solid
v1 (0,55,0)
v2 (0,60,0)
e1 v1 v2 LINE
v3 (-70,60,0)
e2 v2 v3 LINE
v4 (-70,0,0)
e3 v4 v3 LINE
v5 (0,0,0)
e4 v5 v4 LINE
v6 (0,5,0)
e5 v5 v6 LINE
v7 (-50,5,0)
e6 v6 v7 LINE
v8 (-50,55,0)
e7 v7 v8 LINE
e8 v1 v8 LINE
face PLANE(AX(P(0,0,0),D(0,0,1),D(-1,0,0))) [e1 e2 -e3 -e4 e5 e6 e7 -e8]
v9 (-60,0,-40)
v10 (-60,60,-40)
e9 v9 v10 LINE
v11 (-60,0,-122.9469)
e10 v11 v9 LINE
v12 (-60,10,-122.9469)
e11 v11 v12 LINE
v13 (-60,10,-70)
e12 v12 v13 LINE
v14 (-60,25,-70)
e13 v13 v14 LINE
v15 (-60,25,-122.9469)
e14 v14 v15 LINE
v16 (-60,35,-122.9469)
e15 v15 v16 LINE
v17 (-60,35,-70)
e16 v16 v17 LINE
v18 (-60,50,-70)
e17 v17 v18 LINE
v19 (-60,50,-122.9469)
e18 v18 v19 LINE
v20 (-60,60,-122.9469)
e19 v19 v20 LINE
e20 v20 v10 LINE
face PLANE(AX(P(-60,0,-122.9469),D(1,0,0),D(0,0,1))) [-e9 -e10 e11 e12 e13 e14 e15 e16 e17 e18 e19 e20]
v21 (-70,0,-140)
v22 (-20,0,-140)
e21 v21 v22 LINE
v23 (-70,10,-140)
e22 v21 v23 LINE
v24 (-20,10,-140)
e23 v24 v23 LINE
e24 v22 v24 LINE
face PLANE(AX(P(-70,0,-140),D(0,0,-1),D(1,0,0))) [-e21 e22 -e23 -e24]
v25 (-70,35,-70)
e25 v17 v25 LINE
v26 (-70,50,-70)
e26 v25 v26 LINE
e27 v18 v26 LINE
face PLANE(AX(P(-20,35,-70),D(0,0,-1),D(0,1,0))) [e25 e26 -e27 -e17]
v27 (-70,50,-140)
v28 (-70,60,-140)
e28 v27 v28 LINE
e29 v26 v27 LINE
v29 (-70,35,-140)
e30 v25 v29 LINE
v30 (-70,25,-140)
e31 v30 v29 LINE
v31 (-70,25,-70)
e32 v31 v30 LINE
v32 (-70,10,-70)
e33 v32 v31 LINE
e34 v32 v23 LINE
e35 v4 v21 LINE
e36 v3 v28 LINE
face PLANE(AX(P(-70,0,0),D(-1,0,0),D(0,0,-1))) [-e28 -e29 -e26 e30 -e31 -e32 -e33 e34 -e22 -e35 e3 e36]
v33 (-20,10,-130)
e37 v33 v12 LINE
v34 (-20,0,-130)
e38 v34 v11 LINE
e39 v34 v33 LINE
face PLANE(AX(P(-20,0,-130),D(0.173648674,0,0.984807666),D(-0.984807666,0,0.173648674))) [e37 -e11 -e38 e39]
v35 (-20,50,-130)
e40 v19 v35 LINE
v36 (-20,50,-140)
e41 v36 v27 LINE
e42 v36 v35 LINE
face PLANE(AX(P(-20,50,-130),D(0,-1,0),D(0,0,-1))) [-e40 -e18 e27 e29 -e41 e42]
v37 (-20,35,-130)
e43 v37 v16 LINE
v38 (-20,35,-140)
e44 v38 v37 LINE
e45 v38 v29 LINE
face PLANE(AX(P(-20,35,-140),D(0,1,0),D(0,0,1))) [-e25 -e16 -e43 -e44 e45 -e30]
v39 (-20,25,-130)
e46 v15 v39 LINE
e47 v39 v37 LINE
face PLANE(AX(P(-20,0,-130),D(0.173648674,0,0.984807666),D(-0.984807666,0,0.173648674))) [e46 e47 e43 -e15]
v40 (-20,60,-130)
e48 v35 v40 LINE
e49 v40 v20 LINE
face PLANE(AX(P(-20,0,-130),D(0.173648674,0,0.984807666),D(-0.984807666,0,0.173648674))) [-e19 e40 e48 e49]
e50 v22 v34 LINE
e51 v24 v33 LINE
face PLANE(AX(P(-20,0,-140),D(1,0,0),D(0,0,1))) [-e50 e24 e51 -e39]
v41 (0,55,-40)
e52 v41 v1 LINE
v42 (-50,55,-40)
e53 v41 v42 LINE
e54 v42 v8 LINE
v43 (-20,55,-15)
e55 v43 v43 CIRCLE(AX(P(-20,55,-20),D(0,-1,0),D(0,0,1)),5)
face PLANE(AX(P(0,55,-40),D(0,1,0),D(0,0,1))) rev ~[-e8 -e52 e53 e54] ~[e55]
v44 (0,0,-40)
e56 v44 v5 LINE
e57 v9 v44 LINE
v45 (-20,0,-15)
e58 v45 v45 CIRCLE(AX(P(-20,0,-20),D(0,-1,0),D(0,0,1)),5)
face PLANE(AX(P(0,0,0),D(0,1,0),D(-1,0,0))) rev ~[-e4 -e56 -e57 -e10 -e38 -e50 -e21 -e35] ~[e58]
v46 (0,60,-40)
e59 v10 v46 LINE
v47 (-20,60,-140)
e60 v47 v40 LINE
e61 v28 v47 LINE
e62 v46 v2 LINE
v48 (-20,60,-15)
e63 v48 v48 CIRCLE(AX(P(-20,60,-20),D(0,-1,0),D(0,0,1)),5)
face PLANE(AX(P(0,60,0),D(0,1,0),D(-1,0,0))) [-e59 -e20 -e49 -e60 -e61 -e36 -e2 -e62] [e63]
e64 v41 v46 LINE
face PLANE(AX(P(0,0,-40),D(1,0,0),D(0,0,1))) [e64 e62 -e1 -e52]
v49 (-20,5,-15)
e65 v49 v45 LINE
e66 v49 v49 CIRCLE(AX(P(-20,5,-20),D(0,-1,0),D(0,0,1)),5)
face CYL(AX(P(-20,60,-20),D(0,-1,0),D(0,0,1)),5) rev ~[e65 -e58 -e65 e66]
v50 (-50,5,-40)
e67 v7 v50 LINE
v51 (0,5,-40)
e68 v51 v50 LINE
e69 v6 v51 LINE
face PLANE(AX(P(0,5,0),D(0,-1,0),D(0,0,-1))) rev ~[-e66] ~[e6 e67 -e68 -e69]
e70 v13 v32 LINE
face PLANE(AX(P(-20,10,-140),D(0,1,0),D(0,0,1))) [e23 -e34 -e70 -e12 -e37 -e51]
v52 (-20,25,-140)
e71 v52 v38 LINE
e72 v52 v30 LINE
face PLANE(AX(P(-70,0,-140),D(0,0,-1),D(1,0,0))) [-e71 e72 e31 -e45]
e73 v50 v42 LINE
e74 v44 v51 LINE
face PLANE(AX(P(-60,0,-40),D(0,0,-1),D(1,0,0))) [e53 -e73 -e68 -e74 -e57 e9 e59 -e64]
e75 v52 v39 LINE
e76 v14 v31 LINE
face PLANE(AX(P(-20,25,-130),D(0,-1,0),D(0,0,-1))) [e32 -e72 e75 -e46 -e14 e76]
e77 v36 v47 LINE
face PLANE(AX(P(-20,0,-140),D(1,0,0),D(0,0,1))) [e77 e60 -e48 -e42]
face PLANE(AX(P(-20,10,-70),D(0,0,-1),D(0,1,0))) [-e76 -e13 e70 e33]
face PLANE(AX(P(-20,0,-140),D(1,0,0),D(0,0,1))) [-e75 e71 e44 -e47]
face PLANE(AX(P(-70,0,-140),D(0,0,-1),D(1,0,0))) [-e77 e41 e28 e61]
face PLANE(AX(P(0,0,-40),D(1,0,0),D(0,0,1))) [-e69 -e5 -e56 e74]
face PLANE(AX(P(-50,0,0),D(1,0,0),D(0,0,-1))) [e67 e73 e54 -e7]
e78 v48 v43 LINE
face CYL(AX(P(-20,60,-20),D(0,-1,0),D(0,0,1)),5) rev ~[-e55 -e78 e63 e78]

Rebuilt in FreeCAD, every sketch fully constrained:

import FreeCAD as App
import Part
import Sketcher

V = App.Vector
Q = App.Units.Quantity

doc = App.newDocument("Part")
body = doc.addObject("PartDesign::Body", "Body")

sketch1 = body.newObject("Sketcher::SketchObject", "Sketch")
sketch1.AttachmentSupport = (doc.getObject("XZ_Plane"), [""])
sketch1.MapMode = "FlatFace"
sketch1.addGeometry(Part.LineSegment(V(-70, 0, 0), V(0, 0, 0)), False)
sketch1.addGeometry(Part.LineSegment(V(0, 0, 0), V(0, -40, 0)), False)
sketch1.addGeometry(Part.LineSegment(V(0, -40, 0), V(-60, -40, 0)), False)
sketch1.addGeometry(Part.LineSegment(V(-60, -40, 0), V(-60, -123, 0)), False)
sketch1.addGeometry(Part.LineSegment(V(-60, -123, 0), V(-20, -130, 0)), False)
sketch1.addGeometry(Part.LineSegment(V(-20, -130, 0), V(-20, -140, 0)), False)
sketch1.addGeometry(Part.LineSegment(V(-20, -140, 0), V(-70, -140, 0)), False)
sketch1.addGeometry(Part.LineSegment(V(-70, -140, 0), V(-70, 0, 0)), False)
sketch1.addConstraint(Sketcher.Constraint("Coincident", 0, 2, 1, 1))
sketch1.addConstraint(Sketcher.Constraint("Coincident", 1, 2, 2, 1))
sketch1.addConstraint(Sketcher.Constraint("Coincident", 2, 2, 3, 1))
sketch1.addConstraint(Sketcher.Constraint("Coincident", 3, 2, 4, 1))
sketch1.addConstraint(Sketcher.Constraint("Coincident", 4, 2, 5, 1))
sketch1.addConstraint(Sketcher.Constraint("Coincident", 5, 2, 6, 1))
sketch1.addConstraint(Sketcher.Constraint("Coincident", 6, 2, 7, 1))
sketch1.addConstraint(Sketcher.Constraint("Coincident", 7, 2, 0, 1))
sketch1.addConstraint(Sketcher.Constraint("Horizontal", 0))
sketch1.addConstraint(Sketcher.Constraint("Vertical", 1))
sketch1.addConstraint(Sketcher.Constraint("Horizontal", 2))
sketch1.addConstraint(Sketcher.Constraint("Vertical", 3))
sketch1.addConstraint(Sketcher.Constraint("Vertical", 5))
sketch1.addConstraint(Sketcher.Constraint("Horizontal", 6))
sketch1.addConstraint(Sketcher.Constraint("Vertical", 7))
sketch1.addConstraint(Sketcher.Constraint("Coincident", 0, 2, -1, 1))
sketch1.addConstraint(Sketcher.Constraint("DistanceX", 0, 1, 0, 2, Q("70 mm")))
sketch1.addConstraint(Sketcher.Constraint("DistanceX", 2, 2, 2, 1, Q("60 mm")))
sketch1.addConstraint(Sketcher.Constraint("DistanceX", 6, 2, 6, 1, Q("50 mm")))
sketch1.addConstraint(Sketcher.Constraint("DistanceY", 1, 2, 1, 1, Q("40 mm")))
sketch1.addConstraint(Sketcher.Constraint("DistanceY", 5, 2, 5, 1, Q("10 mm")))
sketch1.addConstraint(Sketcher.Constraint("DistanceY", 7, 1, 7, 2, Q("140 mm")))
sketch1.addConstraint(Sketcher.Constraint("Angle", 4, Q("-10 deg")))
pad1 = body.newObject("PartDesign::Pad", "Pad")
pad1.Profile = sketch1
pad1.Length = 60
pad1.Reversed = True

sketch2 = body.newObject("Sketcher::SketchObject", "Sketch001")
sketch2.AttachmentSupport = (doc.getObject("YZ_Plane"), [""])
sketch2.MapMode = "FlatFace"
sketch2.addGeometry(Part.LineSegment(V(5, 0, 0), V(5, -40, 0)), False)
sketch2.addGeometry(Part.LineSegment(V(5, -40, 0), V(55, -40, 0)), False)
sketch2.addGeometry(Part.LineSegment(V(55, -40, 0), V(55, 0, 0)), False)
sketch2.addGeometry(Part.LineSegment(V(55, 0, 0), V(5, 0, 0)), False)
sketch2.addConstraint(Sketcher.Constraint("Coincident", 0, 2, 1, 1))
sketch2.addConstraint(Sketcher.Constraint("Coincident", 1, 2, 2, 1))
sketch2.addConstraint(Sketcher.Constraint("Coincident", 2, 2, 3, 1))
sketch2.addConstraint(Sketcher.Constraint("Coincident", 3, 2, 0, 1))
sketch2.addConstraint(Sketcher.Constraint("Vertical", 0))
sketch2.addConstraint(Sketcher.Constraint("Horizontal", 1))
sketch2.addConstraint(Sketcher.Constraint("Vertical", 2))
sketch2.addConstraint(Sketcher.Constraint("Horizontal", 3))
sketch2.addConstraint(Sketcher.Constraint("PointOnObject", 2, 2, -1))
sketch2.addConstraint(Sketcher.Constraint("DistanceX", -1, 1, 0, 2, Q("5 mm")))
sketch2.addConstraint(Sketcher.Constraint("DistanceX", 1, 1, 1, 2, Q("50 mm")))
sketch2.addConstraint(Sketcher.Constraint("DistanceY", 0, 2, 0, 1, Q("40 mm")))
pocket1 = body.newObject("PartDesign::Pocket", "Pocket")
pocket1.Profile = sketch2
pocket1.Length = 50

sketch3 = body.newObject("Sketcher::SketchObject", "Sketch002")
sketch3.AttachmentSupport = (doc.getObject("YZ_Plane"), [""])
sketch3.MapMode = "FlatFace"
sketch3.AttachmentOffset = App.Placement(V(0, 0, -20), App.Rotation())
sketch3.addGeometry(Part.LineSegment(V(10, -140, 0), V(25, -140, 0)), False)
sketch3.addGeometry(Part.LineSegment(V(25, -140, 0), V(25, -70, 0)), False)
sketch3.addGeometry(Part.LineSegment(V(25, -70, 0), V(10, -70, 0)), False)
sketch3.addGeometry(Part.LineSegment(V(10, -70, 0), V(10, -140, 0)), False)
sketch3.addGeometry(Part.LineSegment(V(35, -140, 0), V(50, -140, 0)), False)
sketch3.addGeometry(Part.LineSegment(V(50, -140, 0), V(50, -70, 0)), False)
sketch3.addGeometry(Part.LineSegment(V(50, -70, 0), V(35, -70, 0)), False)
sketch3.addGeometry(Part.LineSegment(V(35, -70, 0), V(35, -140, 0)), False)
sketch3.addConstraint(Sketcher.Constraint("Coincident", 0, 2, 1, 1))
sketch3.addConstraint(Sketcher.Constraint("Coincident", 1, 2, 2, 1))
sketch3.addConstraint(Sketcher.Constraint("Coincident", 2, 2, 3, 1))
sketch3.addConstraint(Sketcher.Constraint("Coincident", 3, 2, 0, 1))
sketch3.addConstraint(Sketcher.Constraint("Coincident", 4, 2, 5, 1))
sketch3.addConstraint(Sketcher.Constraint("Coincident", 5, 2, 6, 1))
sketch3.addConstraint(Sketcher.Constraint("Coincident", 6, 2, 7, 1))
sketch3.addConstraint(Sketcher.Constraint("Coincident", 7, 2, 4, 1))
sketch3.addConstraint(Sketcher.Constraint("Horizontal", 0))
sketch3.addConstraint(Sketcher.Constraint("Vertical", 1))
sketch3.addConstraint(Sketcher.Constraint("Horizontal", 2))
sketch3.addConstraint(Sketcher.Constraint("Vertical", 3))
sketch3.addConstraint(Sketcher.Constraint("Horizontal", 4))
sketch3.addConstraint(Sketcher.Constraint("Vertical", 5))
sketch3.addConstraint(Sketcher.Constraint("Horizontal", 6))
sketch3.addConstraint(Sketcher.Constraint("Vertical", 7))
sketch3.addConstraint(Sketcher.Constraint("Horizontal", 3, 2, 4, 2))
sketch3.addConstraint(Sketcher.Constraint("Horizontal", 2, 2, 5, 2))
sketch3.addConstraint(Sketcher.Constraint("Equal", 2, 4))
sketch3.addConstraint(Sketcher.Constraint("DistanceX", 0, 1, 0, 2, Q("15 mm")))
sketch3.addConstraint(Sketcher.Constraint("DistanceY", 1, 1, 1, 2, Q("70 mm")))
sketch3.addConstraint(Sketcher.Constraint("DistanceY", 1, 2, -1, 1, Q("70 mm")))
sketch3.addConstraint(Sketcher.Constraint("DistanceX", -1, 1, 2, 2, Q("10 mm")))
sketch3.addConstraint(Sketcher.Constraint("DistanceX", 1, 2, 6, 2, Q("10 mm")))
pocket2 = body.newObject("PartDesign::Pocket", "Pocket001")
pocket2.Profile = sketch3
pocket2.Length = 50

sketch4 = body.newObject("Sketcher::SketchObject", "Sketch003")
sketch4.AttachmentSupport = (doc.getObject("XZ_Plane"), [""])
sketch4.MapMode = "FlatFace"
sketch4.AttachmentOffset = App.Placement(V(0, 0, -60), App.Rotation())
sketch4.addGeometry(Part.Circle(V(-20, -20, 0), V(0, 0, 1), 5), False)
sketch4.addConstraint(Sketcher.Constraint("Diameter", 0, Q("10 mm")))
sketch4.addConstraint(Sketcher.Constraint("DistanceX", 0, 3, -1, 1, Q("20 mm")))
sketch4.addConstraint(Sketcher.Constraint("DistanceY", 0, 3, -1, 1, Q("20 mm")))
doc.recompute()
hole = body.newObject("PartDesign::Hole", "Hole")
hole.Profile = sketch4
hole.ThreadType = "None"
hole.Diameter = 10
hole.DepthType = "ThroughAll"
hole.Reversed = True

doc.recompute()
